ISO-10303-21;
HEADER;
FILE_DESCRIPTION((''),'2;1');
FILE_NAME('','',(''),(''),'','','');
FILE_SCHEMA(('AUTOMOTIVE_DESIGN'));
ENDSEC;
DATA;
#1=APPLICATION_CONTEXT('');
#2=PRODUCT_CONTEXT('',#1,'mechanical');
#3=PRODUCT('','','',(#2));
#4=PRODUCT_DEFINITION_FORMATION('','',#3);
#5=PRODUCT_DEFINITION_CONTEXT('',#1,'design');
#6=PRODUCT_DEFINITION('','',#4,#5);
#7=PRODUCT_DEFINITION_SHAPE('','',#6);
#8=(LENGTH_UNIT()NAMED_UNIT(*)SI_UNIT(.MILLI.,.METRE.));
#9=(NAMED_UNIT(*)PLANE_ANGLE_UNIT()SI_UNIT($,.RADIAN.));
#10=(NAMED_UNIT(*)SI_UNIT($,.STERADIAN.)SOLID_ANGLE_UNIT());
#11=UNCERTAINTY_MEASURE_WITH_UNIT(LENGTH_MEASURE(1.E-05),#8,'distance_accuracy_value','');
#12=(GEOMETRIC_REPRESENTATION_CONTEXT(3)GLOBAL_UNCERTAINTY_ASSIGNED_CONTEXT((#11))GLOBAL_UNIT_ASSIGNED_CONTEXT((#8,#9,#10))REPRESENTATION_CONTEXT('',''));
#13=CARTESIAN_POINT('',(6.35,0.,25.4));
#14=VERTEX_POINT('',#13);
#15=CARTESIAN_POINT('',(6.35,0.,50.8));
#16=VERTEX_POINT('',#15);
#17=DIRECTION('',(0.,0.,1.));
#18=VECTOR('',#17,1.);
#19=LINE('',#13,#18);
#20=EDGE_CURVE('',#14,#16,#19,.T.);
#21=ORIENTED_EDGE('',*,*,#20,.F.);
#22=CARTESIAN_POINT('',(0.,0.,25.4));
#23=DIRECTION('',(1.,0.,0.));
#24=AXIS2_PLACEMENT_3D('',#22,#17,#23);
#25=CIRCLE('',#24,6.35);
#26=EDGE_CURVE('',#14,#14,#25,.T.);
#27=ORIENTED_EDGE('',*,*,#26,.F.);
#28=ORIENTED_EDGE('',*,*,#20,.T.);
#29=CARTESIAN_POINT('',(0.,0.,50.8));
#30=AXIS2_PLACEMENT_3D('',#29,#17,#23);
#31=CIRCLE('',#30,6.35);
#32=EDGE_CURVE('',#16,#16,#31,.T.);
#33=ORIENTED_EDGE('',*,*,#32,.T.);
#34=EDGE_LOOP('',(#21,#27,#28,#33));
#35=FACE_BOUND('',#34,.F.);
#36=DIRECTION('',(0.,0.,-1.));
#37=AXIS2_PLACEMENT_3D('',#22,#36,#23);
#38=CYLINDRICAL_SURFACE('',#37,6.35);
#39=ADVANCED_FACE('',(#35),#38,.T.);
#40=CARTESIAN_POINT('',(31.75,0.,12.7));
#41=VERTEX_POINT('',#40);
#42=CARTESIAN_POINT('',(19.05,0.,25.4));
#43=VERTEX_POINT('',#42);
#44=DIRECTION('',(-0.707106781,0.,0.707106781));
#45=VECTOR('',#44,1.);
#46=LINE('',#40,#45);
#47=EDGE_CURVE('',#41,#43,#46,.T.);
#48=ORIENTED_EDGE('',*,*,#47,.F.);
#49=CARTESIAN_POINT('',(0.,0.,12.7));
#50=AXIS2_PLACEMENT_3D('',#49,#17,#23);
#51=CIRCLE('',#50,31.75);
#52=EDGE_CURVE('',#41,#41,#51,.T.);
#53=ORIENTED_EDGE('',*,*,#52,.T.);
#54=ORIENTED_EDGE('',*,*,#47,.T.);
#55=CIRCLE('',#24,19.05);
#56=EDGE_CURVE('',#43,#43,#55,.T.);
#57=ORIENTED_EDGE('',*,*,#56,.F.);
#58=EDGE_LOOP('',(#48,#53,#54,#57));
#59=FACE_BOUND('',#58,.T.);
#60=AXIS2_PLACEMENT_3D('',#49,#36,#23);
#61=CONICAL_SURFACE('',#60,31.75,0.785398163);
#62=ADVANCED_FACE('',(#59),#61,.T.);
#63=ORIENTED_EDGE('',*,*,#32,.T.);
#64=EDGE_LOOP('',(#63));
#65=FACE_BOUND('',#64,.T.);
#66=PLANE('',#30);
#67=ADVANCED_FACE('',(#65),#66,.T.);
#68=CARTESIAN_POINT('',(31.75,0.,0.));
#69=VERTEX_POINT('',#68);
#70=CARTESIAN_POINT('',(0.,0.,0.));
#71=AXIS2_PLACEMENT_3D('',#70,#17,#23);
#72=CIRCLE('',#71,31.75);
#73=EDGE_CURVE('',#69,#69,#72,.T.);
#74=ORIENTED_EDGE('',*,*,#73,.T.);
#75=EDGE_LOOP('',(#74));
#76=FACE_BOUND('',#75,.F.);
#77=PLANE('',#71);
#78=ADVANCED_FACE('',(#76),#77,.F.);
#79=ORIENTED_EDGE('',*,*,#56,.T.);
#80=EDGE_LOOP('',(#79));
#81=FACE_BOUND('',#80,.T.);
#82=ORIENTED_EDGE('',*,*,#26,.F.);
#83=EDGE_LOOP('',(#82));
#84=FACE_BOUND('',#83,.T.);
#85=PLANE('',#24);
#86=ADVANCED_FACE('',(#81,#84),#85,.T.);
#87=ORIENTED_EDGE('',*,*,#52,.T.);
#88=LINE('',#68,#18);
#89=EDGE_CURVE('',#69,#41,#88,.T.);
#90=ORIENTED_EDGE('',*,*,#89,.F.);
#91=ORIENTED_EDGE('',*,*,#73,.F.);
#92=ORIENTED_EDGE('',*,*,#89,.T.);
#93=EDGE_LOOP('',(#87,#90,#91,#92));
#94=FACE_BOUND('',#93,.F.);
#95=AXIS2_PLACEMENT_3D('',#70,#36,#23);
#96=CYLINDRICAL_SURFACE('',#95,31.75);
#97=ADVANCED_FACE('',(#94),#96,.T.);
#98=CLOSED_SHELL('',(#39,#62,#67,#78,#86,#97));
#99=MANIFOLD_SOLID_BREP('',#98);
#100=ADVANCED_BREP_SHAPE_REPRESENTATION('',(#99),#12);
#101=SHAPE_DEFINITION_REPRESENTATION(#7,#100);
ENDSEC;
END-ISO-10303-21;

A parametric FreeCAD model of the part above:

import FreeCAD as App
import Part
import Sketcher

V = App.Vector
Q = App.Units.Quantity


def edges_at(feature, points):
    """Names of the edges that pass closest to the given points."""
    edges = feature.Shape.Edges
    near = lambda p: min(range(len(edges)), key=lambda i: edges[i].distToShape(Part.Vertex(*p))[0])
    return sorted({f"Edge{near(p) + 1}" for p in points})

doc = App.newDocument("Part")
body = doc.addObject("PartDesign::Body", "Body")

# Sketch on XY plane
sketch1 = body.newObject("Sketcher::SketchObject", "Sketch")
sketch1.AttachmentSupport = (doc.getObject("XY_Plane"), [""])
sketch1.MapMode = "FlatFace"
sketch1.addGeometry(Part.Circle(V(0, 0, 0), V(0, 0, 1), 31.75), False)
sketch1.addConstraint(Sketcher.Constraint("Coincident", 0, 3, -1, 1))
sketch1.addConstraint(Sketcher.Constraint("Diameter", 0, Q("2.5 in")))
pad1 = body.newObject("PartDesign::Pad", "Pad")
pad1.Profile = sketch1
pad1.Length = Q("1 in")
doc.recompute()

chamfer = body.newObject("PartDesign::Chamfer", "Chamfer")
chamfer.Base = (pad1, edges_at(pad1, [(-31.75, 0, 25.4)]))
chamfer.Size = Q("0.5 in")

# Sketch on XY plane
sketch2 = body.newObject("Sketcher::SketchObject", "Sketch001")
sketch2.AttachmentSupport = (doc.getObject("XY_Plane"), [""])
sketch2.MapMode = "FlatFace"
sketch2.AttachmentOffset = App.Placement(V(0, 0, 1 * 25.4), App.Rotation())
sketch2.addGeometry(Part.Circle(V(0, 0, 0), V(0, 0, 1), 6.35), False)
sketch2.addConstraint(Sketcher.Constraint("Coincident", 0, 3, -1, 1))
sketch2.addConstraint(Sketcher.Constraint("Diameter", 0, Q("0.5 in")))
pad2 = body.newObject("PartDesign::Pad", "Pad001")
pad2.Profile = sketch2
pad2.Length = Q("1 in")

doc.recompute()
